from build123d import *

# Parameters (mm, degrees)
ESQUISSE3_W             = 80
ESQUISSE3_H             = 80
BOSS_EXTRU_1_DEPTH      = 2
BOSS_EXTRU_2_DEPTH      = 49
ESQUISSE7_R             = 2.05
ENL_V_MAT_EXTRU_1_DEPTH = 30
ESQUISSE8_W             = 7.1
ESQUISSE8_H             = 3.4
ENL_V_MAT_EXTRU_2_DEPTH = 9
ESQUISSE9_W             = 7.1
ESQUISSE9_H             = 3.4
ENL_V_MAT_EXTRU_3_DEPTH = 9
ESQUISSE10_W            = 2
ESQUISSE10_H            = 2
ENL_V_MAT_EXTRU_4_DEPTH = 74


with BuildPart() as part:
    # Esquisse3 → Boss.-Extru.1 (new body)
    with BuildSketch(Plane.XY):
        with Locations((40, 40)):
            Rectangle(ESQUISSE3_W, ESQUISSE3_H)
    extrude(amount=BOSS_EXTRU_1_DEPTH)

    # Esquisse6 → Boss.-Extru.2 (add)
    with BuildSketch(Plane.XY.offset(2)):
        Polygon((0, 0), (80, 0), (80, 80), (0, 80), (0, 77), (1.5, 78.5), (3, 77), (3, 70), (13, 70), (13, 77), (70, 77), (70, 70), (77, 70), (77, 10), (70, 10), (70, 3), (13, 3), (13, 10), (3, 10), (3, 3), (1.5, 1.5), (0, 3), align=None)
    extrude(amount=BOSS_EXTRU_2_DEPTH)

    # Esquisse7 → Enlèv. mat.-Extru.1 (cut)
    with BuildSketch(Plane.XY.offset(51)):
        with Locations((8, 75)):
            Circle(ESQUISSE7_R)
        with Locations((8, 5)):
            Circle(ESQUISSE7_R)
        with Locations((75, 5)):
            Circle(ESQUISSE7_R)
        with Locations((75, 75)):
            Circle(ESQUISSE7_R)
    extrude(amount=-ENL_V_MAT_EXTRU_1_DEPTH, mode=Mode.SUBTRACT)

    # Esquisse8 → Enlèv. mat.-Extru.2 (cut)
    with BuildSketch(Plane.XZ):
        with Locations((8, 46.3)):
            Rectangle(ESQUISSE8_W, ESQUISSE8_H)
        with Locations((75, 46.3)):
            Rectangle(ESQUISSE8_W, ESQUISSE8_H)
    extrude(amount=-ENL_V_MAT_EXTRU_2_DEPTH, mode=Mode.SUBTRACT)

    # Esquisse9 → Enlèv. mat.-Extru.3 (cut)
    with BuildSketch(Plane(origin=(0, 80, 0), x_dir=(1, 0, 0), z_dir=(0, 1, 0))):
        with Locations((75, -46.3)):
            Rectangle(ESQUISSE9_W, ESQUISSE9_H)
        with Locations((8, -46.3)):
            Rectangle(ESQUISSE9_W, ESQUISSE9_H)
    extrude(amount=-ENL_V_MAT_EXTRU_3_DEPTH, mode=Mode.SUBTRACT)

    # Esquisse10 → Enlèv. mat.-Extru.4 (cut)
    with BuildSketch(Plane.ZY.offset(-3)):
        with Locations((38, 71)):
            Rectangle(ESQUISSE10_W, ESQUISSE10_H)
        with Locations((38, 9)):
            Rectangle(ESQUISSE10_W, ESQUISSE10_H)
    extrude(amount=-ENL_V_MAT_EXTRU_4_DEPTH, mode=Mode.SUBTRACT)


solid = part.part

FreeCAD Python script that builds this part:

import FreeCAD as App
import Part
import Sketcher

V = App.Vector
Q = App.Units.Quantity

doc = App.newDocument("Part")
body = doc.addObject("PartDesign::Body", "Body")

sketch1 = body.newObject("Sketcher::SketchObject", "Sketch")
sketch1.AttachmentSupport = (doc.getObject("XY_Plane"), [""])
sketch1.MapMode = "FlatFace"
sketch1.addGeometry([
    Part.LineSegment(V(0, 80, 0), V(0, 0, 0)),
    Part.LineSegment(V(0, 0, 0), V(80, 0, 0)),
    Part.LineSegment(V(80, 0, 0), V(80, 80, 0)),
    Part.LineSegment(V(80, 80, 0), V(0, 80, 0)),
], False)
sketch1.addConstraint([
    Sketcher.Constraint("Coincident", 0, 2, 1, 1),
    Sketcher.Constraint("Coincident", 1, 2, 2, 1),
    Sketcher.Constraint("Coincident", 2, 2, 3, 1),
    Sketcher.Constraint("Coincident", 3, 2, 0, 1),
    Sketcher.Constraint("Vertical", 0),
    Sketcher.Constraint("Horizontal", 1),
    Sketcher.Constraint("Vertical", 2),
    Sketcher.Constraint("Horizontal", 3),
    Sketcher.Constraint("Coincident", 0, 2, -1, 1),
    Sketcher.Constraint("Equal", 3, 0),
    Sketcher.Constraint("DistanceX", 1, 1, 1, 2, Q("80 mm")),
])
pad1 = body.newObject("PartDesign::Pad", "Pad")
pad1.Profile = sketch1
pad1.Length = 2

sketch2 = body.newObject("Sketcher::SketchObject", "Sketch001")
sketch2.AttachmentSupport = (doc.getObject("XY_Plane"), [""])
sketch2.MapMode = "FlatFace"
sketch2.AttachmentOffset = App.Placement(V(0, 0, 2), App.Rotation())
sketch2.addGeometry([
    Part.LineSegment(V(0, 0, 0), V(80, 0, 0)),
    Part.LineSegment(V(80, 0, 0), V(80, 80, 0)),
    Part.LineSegment(V(80, 80, 0), V(0, 80, 0)),
    Part.LineSegment(V(0, 80, 0), V(0, 77, 0)),
    Part.LineSegment(V(0, 77, 0), V(1.5, 78.5, 0)),
    Part.LineSegment(V(1.5, 78.5, 0), V(3, 77, 0)),
    Part.LineSegment(V(3, 77, 0), V(3, 70, 0)),
    Part.LineSegment(V(3, 70, 0), V(13, 70, 0)),
    Part.LineSegment(V(13, 70, 0), V(13, 77, 0)),
    Part.LineSegment(V(13, 77, 0), V(70, 77, 0)),
    Part.LineSegment(V(70, 77, 0), V(70, 70, 0)),
    Part.LineSegment(V(70, 70, 0), V(77, 70, 0)),
    Part.LineSegment(V(77, 70, 0), V(77, 10, 0)),
    Part.LineSegment(V(77, 10, 0), V(70, 10, 0)),
    Part.LineSegment(V(70, 10, 0), V(70, 3, 0)),
    Part.LineSegment(V(70, 3, 0), V(13, 3, 0)),
    Part.LineSegment(V(13, 3, 0), V(13, 10, 0)),
    Part.LineSegment(V(13, 10, 0), V(3, 10, 0)),
    Part.LineSegment(V(3, 10, 0), V(3, 3, 0)),
    Part.LineSegment(V(3, 3, 0), V(1.5, 1.5, 0)),
    Part.LineSegment(V(1.5, 1.5, 0), V(0, 3, 0)),
    Part.LineSegment(V(0, 3, 0), V(0, 0, 0)),
], False)
sketch2.addConstraint([
    Sketcher.Constraint("Coincident", 0, 2, 1, 1),
    Sketcher.Constraint("Coincident", 1, 2, 2, 1),
    Sketcher.Constraint("Coincident", 2, 2, 3, 1),
    Sketcher.Constraint("Coincident", 3, 2, 4, 1),
    Sketcher.Constraint("Coincident", 4, 2, 5, 1),
    Sketcher.Constraint("Coincident", 5, 2, 6, 1),
    Sketcher.Constraint("Coincident", 6, 2, 7, 1),
    Sketcher.Constraint("Coincident", 7, 2, 8, 1),
    Sketcher.Constraint("Coincident", 8, 2, 9, 1),
    Sketcher.Constraint("Coincident", 9, 2, 10, 1),
    Sketcher.Constraint("Coincident", 10, 2, 11, 1),
    Sketcher.Constraint("Coincident", 11, 2, 12, 1),
    Sketcher.Constraint("Coincident", 12, 2, 13, 1),
    Sketcher.Constraint("Coincident", 13, 2, 14, 1),
    Sketcher.Constraint("Coincident", 14, 2, 15, 1),
    Sketcher.Constraint("Coincident", 15, 2, 16, 1),
    Sketcher.Constraint("Coincident", 16, 2, 17, 1),
    Sketcher.Constraint("Coincident", 17, 2, 18, 1),
    Sketcher.Constraint("Coincident", 18, 2, 19, 1),
    Sketcher.Constraint("Coincident", 19, 2, 20, 1),
    Sketcher.Constraint("Coincident", 20, 2, 21, 1),
    Sketcher.Constraint("Coincident", 21, 2, 0, 1),
    Sketcher.Constraint("Horizontal", 0),
    Sketcher.Constraint("Vertical", 1),
    Sketcher.Constraint("Horizontal", 2),
    Sketcher.Constraint("Vertical", 3),
    Sketcher.Constraint("Vertical", 6),
    Sketcher.Constraint("Horizontal", 7),
    Sketcher.Constraint("Vertical", 8),
    Sketcher.Constraint("Horizontal", 9),
    Sketcher.Constraint("Vertical", 10),
    Sketcher.Constraint("Horizontal", 11),
    Sketcher.Constraint("Vertical", 12),
    Sketcher.Constraint("Horizontal", 13),
    Sketcher.Constraint("Vertical", 14),
    Sketcher.Constraint("Horizontal", 15),
    Sketcher.Constraint("Vertical", 16),
    Sketcher.Constraint("Horizontal", 17),
    Sketcher.Constraint("Vertical", 18),
    Sketcher.Constraint("Vertical", 21),
    Sketcher.Constraint("Coincident", 21, 2, -1, 1),
    Sketcher.Constraint("PointOnObject", 2, 2, -2),
    Sketcher.Constraint("Perpendicular", 4, 5),
    Sketcher.Constraint("Perpendicular", 5, 19),
    Sketcher.Constraint("Perpendicular", 19, 20),
    Sketcher.Constraint("Horizontal", 3, 2, 5, 2),
    Sketcher.Constraint("Horizontal", 5, 2, 8, 2),
    Sketcher.Constraint("Horizontal", 7, 2, 10, 2),
    Sketcher.Constraint("Horizontal", 13, 2, 16, 2),
    Sketcher.Constraint("Horizontal", 15, 2, 18, 2),
    Sketcher.Constraint("Horizontal", 18, 2, 20, 2),
    Sketcher.Constraint("Vertical", 10, 2, 13, 2),
    Sketcher.Constraint("Vertical", 8, 2, 15, 2),
    Sketcher.Constraint("Vertical", 6, 2, 17, 2),
    Sketcher.Constraint("Vertical", 4, 2, 19, 2),
    Sketcher.Constraint("Equal", 2, 1),
    Sketcher.Constraint("Equal", 13, 6),
    Sketcher.Constraint("Equal", 10, 14),
    Sketcher.Constraint("Equal", 3, 21),
    Sketcher.Constraint("DistanceX", 0, 1, 0, 2, Q("80 mm")),
    Sketcher.Constraint("DistanceX", 7, 1, 7, 2, Q("10 mm")),
    Sketcher.Constraint("DistanceX", 9, 1, 9, 2, Q("57 mm")),
    Sketcher.Constraint("DistanceX", 11, 1, 11, 2, Q("7 mm")),
    Sketcher.Constraint("DistanceY", 3, 2, 3, 1, Q("3 mm")),
    Sketcher.Constraint("DistanceX", -1, 1, 5, 2, Q("3 mm")),
])
pad2 = body.newObject("PartDesign::Pad", "Pad001")
pad2.Profile = sketch2
pad2.Length = 49

sketch3 = body.newObject("Sketcher::SketchObject", "Sketch002")
sketch3.AttachmentSupport = (doc.getObject("XY_Plane"), [""])
sketch3.MapMode = "FlatFace"
sketch3.AttachmentOffset = App.Placement(V(0, 0, 51), App.Rotation())
sketch3.addGeometry([
    Part.Circle(V(8, 75, 0), V(0, 0, 1), 2.05),
    Part.Circle(V(8, 5, 0), V(0, 0, 1), 2.05),
    Part.Circle(V(75, 5, 0), V(0, 0, 1), 2.05),
    Part.Circle(V(75, 75, 0), V(0, 0, 1), 2.05),
], False)
sketch3.addConstraint([
    Sketcher.Constraint("Equal", 0, 1),
    Sketcher.Constraint("Equal", 1, 2),
    Sketcher.Constraint("Equal", 2, 3),
    Sketcher.Constraint("Horizontal", 1, 3, 2, 3),
    Sketcher.Constraint("Horizontal", 0, 3, 3, 3),
    Sketcher.Constraint("Vertical", 0, 3, 1, 3),
    Sketcher.Constraint("Vertical", 2, 3, 3, 3),
    Sketcher.Constraint("Diameter", 0, Q("4.1 mm")),
    Sketcher.Constraint("DistanceX", -1, 1, 0, 3, Q("8 mm")),
    Sketcher.Constraint("DistanceY", -1, 1, 0, 3, Q("75 mm")),
    Sketcher.Constraint("DistanceY", -1, 1, 1, 3, Q("5 mm")),
    Sketcher.Constraint("DistanceX", -1, 1, 2, 3, Q("75 mm")),
])
pocket1 = body.newObject("PartDesign::Pocket", "Pocket")
pocket1.Profile = sketch3
pocket1.Length = 30

sketch4 = body.newObject("Sketcher::SketchObject", "Sketch003")
sketch4.AttachmentSupport = (doc.getObject("XZ_Plane"), [""])
sketch4.MapMode = "FlatFace"
sketch4.addGeometry([
    Part.LineSegment(V(4.45, 48, 0), V(4.45, 44.6, 0)),
    Part.LineSegment(V(4.45, 44.6, 0), V(11.55, 44.6, 0)),
    Part.LineSegment(V(11.55, 44.6, 0), V(11.55, 48, 0)),
    Part.LineSegment(V(11.55, 48, 0), V(4.45, 48, 0)),
    Part.LineSegment(V(71.45, 48, 0), V(71.45, 44.6, 0)),
    Part.LineSegment(V(71.45, 44.6, 0), V(78.55, 44.6, 0)),
    Part.LineSegment(V(78.55, 44.6, 0), V(78.55, 48, 0)),
    Part.LineSegment(V(78.55, 48, 0), V(71.45, 48, 0)),
], False)
sketch4.addConstraint([
    Sketcher.Constraint("Coincident", 0, 2, 1, 1),
    Sketcher.Constraint("Coincident", 1, 2, 2, 1),
    Sketcher.Constraint("Coincident", 2, 2, 3, 1),
    Sketcher.Constraint("Coincident", 3, 2, 0, 1),
    Sketcher.Constraint("Coincident", 4, 2, 5, 1),
    Sketcher.Constraint("Coincident", 5, 2, 6, 1),
    Sketcher.Constraint("Coincident", 6, 2, 7, 1),
    Sketcher.Constraint("Coincident", 7, 2, 4, 1),
    Sketcher.Constraint("Vertical", 0),
    Sketcher.Constraint("Horizontal", 1),
    Sketcher.Constraint("Vertical", 2),
    Sketcher.Constraint("Horizontal", 3),
    Sketcher.Constraint("Vertical", 4),
    Sketcher.Constraint("Horizontal", 5),
    Sketcher.Constraint("Vertical", 6),
    Sketcher.Constraint("Horizontal", 7),
    Sketcher.Constraint("Horizontal", 1, 2, 4, 2),
    Sketcher.Constraint("Horizontal", 3, 2, 6, 2),
    Sketcher.Constraint("Equal", 3, 5),
    Sketcher.Constraint("DistanceX", 1, 1, 1, 2, Q("7.1 mm")),
    Sketcher.Constraint("DistanceY", 0, 2, 0, 1, Q("3.4 mm")),
    Sketcher.Constraint("DistanceY", -1, 1, 2, 2, Q("48 mm")),
    Sketcher.Constraint("DistanceX", 0, 2, 4, 2, Q("67 mm")),
    Sketcher.Constraint("DistanceX", -1, 1, 0, 2, Q("4.45 mm")),
])
pocket2 = body.newObject("PartDesign::Pocket", "Pocket001")
pocket2.Profile = sketch4
pocket2.Length = 9

sketch5 = body.newObject("Sketcher::SketchObject", "Sketch004")
sketch5.AttachmentSupport = (doc.getObject("XZ_Plane"), [""])
sketch5.MapMode = "FlatFace"
sketch5.AttachmentOffset = App.Placement(V(0, 0, -80), App.Rotation())
sketch5.addGeometry([
    Part.LineSegment(V(71.45, 44.6, 0), V(71.45, 48, 0)),
    Part.LineSegment(V(71.45, 48, 0), V(78.55, 48, 0)),
    Part.LineSegment(V(78.55, 48, 0), V(78.55, 44.6, 0)),
    Part.LineSegment(V(78.55, 44.6, 0), V(71.45, 44.6, 0)),
    Part.LineSegment(V(4.45, 44.6, 0), V(4.45, 48, 0)),
    Part.LineSegment(V(4.45, 48, 0), V(11.55, 48, 0)),
    Part.LineSegment(V(11.55, 48, 0), V(11.55, 44.6, 0)),
    Part.LineSegment(V(11.55, 44.6, 0), V(4.45, 44.6, 0)),
], False)
sketch5.addConstraint([
    Sketcher.Constraint("Coincident", 0, 2, 1, 1),
    Sketcher.Constraint("Coincident", 1, 2, 2, 1),
    Sketcher.Constraint("Coincident", 2, 2, 3, 1),
    Sketcher.Constraint("Coincident", 3, 2, 0, 1),
    Sketcher.Constraint("Coincident", 4, 2, 5, 1),
    Sketcher.Constraint("Coincident", 5, 2, 6, 1),
    Sketcher.Constraint("Coincident", 6, 2, 7, 1),
    Sketcher.Constraint("Coincident", 7, 2, 4, 1),
    Sketcher.Constraint("Vertical", 0),
    Sketcher.Constraint("Horizontal", 1),
    Sketcher.Constraint("Vertical", 2),
    Sketcher.Constraint("Horizontal", 3),
    Sketcher.Constraint("Vertical", 4),
    Sketcher.Constraint("Horizontal", 5),
    Sketcher.Constraint("Vertical", 6),
    Sketcher.Constraint("Horizontal", 7),
    Sketcher.Constraint("Horizontal", 1, 2, 4, 2),
    Sketcher.Constraint("Horizontal", 3, 2, 6, 2),
    Sketcher.Constraint("Equal", 3, 5),
    Sketcher.Constraint("DistanceX", 1, 1, 1, 2, Q("7.1 mm")),
    Sketcher.Constraint("DistanceY", 0, 1, 0, 2, Q("3.4 mm")),
    Sketcher.Constraint("DistanceY", -1, 1, 0, 2, Q("48 mm")),
    Sketcher.Constraint("DistanceX", 4, 2, 0, 2, Q("67 mm")),
    Sketcher.Constraint("DistanceX", -1, 1, 0, 2, Q("71.45 mm")),
])
pocket3 = body.newObject("PartDesign::Pocket", "Pocket002")
pocket3.Profile = sketch5
pocket3.Length = 9
pocket3.Reversed = True

sketch6 = body.newObject("Sketcher::SketchObject", "Sketch005")
sketch6.AttachmentSupport = (doc.getObject("YZ_Plane"), [""])
sketch6.MapMode = "FlatFace"
sketch6.AttachmentOffset = App.Placement(V(0, 0, 3), App.Rotation())
sketch6.addGeometry([
    Part.LineSegment(V(72, 37, 0), V(70, 37, 0)),
    Part.LineSegment(V(70, 37, 0), V(70, 39, 0)),
    Part.LineSegment(V(70, 39, 0), V(72, 39, 0)),
    Part.LineSegment(V(72, 39, 0), V(72, 37, 0)),
    Part.LineSegment(V(10, 37, 0), V(8, 37, 0)),
    Part.LineSegment(V(8, 37, 0), V(8, 39, 0)),
    Part.LineSegment(V(8, 39, 0), V(10, 39, 0)),
    Part.LineSegment(V(10, 39, 0), V(10, 37, 0)),
], False)
sketch6.addConstraint([
    Sketcher.Constraint("Coincident", 0, 2, 1, 1),
    Sketcher.Constraint("Coincident", 1, 2, 2, 1),
    Sketcher.Constraint("Coincident", 2, 2, 3, 1),
    Sketcher.Constraint("Coincident", 3, 2, 0, 1),
    Sketcher.Constraint("Coincident", 4, 2, 5, 1),
    Sketcher.Constraint("Coincident", 5, 2, 6, 1),
    Sketcher.Constraint("Coincident", 6, 2, 7, 1),
    Sketcher.Constraint("Coincident", 7, 2, 4, 1),
    Sketcher.Constraint("Horizontal", 0),
    Sketcher.Constraint("Vertical", 1),
    Sketcher.Constraint("Horizontal", 2),
    Sketcher.Constraint("Vertical", 3),
    Sketcher.Constraint("Horizontal", 4),
    Sketcher.Constraint("Vertical", 5),
    Sketcher.Constraint("Horizontal", 6),
    Sketcher.Constraint("Vertical", 7),
    Sketcher.Constraint("Horizontal", 3, 2, 4, 2),
    Sketcher.Constraint("Horizontal", 2, 2, 5, 2),
    Sketcher.Constraint("Equal", 2, 4),
    Sketcher.Constraint("Equal", 6, 1),
    Sketcher.Constraint("DistanceX", 0, 2, 0, 1, Q("2 mm")),
    Sketcher.Constraint("DistanceX", -1, 1, 0, 2, Q("70 mm")),
    Sketcher.Constraint("DistanceY", -1, 1, 0, 2, Q("37 mm")),
    Sketcher.Constraint("DistanceX", -1, 1, 4, 2, Q("8 mm")),
])
pocket4 = body.newObject("PartDesign::Pocket", "Pocket003")
pocket4.Profile = sketch6
pocket4.Length = 74
pocket4.Reversed = True

doc.recompute()
